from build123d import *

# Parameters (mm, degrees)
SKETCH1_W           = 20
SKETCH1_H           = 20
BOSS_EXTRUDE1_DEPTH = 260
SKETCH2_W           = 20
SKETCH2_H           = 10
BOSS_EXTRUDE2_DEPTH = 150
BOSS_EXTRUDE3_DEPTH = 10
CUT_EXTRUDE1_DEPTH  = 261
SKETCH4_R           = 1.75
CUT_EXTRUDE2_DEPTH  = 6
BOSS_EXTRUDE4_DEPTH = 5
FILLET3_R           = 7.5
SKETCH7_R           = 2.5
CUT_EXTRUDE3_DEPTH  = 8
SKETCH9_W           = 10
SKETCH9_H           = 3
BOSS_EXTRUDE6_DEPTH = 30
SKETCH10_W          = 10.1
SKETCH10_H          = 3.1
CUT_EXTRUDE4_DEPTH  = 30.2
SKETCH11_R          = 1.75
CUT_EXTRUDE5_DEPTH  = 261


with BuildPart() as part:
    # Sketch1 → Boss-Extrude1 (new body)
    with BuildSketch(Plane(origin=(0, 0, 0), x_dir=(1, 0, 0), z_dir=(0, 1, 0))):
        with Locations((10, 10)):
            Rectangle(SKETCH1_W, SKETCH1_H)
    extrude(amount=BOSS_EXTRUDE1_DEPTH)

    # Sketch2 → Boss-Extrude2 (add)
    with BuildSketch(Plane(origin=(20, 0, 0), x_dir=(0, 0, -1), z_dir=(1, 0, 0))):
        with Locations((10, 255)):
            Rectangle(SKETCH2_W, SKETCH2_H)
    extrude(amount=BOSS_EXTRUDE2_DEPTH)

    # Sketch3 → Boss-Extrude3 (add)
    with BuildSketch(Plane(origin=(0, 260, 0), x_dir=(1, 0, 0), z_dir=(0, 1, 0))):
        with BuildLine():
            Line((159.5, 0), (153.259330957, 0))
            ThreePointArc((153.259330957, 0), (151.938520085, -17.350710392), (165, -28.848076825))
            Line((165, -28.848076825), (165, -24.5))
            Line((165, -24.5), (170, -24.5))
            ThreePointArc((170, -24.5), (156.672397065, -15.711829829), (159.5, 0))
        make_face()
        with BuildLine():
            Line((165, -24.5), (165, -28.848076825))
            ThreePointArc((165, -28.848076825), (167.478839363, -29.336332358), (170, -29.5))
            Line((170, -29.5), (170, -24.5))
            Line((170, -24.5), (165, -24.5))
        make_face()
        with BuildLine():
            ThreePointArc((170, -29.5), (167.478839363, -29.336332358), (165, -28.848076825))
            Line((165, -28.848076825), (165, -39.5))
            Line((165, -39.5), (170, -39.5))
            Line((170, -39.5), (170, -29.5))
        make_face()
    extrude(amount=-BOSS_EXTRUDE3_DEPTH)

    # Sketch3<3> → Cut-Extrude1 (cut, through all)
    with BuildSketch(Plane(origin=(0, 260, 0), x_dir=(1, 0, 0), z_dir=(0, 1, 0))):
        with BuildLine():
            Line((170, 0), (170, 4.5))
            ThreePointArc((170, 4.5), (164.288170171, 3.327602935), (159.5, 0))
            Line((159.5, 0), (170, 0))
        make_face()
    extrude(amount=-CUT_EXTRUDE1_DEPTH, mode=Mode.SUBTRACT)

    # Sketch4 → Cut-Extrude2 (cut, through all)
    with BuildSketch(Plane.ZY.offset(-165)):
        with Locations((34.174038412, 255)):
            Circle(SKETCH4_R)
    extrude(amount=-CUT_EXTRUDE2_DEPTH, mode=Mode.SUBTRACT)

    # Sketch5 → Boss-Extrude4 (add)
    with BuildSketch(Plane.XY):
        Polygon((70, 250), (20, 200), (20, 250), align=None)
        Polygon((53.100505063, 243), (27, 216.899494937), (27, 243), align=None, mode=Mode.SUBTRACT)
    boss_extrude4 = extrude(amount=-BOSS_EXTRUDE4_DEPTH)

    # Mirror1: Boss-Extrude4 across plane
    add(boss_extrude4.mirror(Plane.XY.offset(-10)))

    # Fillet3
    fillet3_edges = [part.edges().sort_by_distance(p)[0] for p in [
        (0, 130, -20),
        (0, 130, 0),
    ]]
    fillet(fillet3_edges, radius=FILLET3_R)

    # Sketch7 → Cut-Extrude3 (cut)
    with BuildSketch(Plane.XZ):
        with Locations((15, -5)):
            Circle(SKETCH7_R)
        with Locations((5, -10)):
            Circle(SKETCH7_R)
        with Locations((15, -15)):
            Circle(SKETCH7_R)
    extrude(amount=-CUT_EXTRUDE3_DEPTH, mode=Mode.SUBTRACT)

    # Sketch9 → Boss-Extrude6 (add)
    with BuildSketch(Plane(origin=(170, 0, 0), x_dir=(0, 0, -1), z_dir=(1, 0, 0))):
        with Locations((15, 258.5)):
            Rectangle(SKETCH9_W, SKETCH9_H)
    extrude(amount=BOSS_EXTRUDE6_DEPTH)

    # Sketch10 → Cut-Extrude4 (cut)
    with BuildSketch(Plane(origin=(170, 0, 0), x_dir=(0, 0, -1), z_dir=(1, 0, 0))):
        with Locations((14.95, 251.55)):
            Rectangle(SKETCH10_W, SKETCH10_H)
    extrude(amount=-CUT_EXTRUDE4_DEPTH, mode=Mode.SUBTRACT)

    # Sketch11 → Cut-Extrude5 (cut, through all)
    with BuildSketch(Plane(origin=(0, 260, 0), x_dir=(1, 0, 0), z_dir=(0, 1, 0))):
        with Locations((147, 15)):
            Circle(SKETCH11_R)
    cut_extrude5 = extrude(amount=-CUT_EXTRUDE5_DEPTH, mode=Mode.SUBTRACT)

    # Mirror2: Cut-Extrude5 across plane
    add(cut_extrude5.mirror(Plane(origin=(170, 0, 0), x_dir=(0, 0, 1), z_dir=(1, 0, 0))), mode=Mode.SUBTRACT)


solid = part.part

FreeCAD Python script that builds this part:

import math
import FreeCAD as App
import Part
import Sketcher
from FreeCAD import Vector
Q = App.Units.Quantity


def edges_at(feature, points):
    """Names of the edges that pass closest to the given points."""
    edges = feature.Shape.Edges
    near = lambda p: min(range(len(edges)), key=lambda i: edges[i].distToShape(Part.Vertex(*p))[0])
    return sorted({f"Edge{near(p) + 1}" for p in points})

doc = App.newDocument("Part")
body = doc.addObject("PartDesign::Body", "Body")

sketch1 = body.newObject("Sketcher::SketchObject", "Sketch")
sketch1.AttachmentSupport = (doc.getObject("XZ_Plane"), [""])
sketch1.MapMode = "FlatFace"
sketch1.addGeometry(Part.LineSegment(Vector(0, -20, 0), Vector(0, 0, 0)), False)
sketch1.addGeometry(Part.LineSegment(Vector(0, 0, 0), Vector(20, 0, 0)), False)
sketch1.addGeometry(Part.LineSegment(Vector(20, 0, 0), Vector(20, -20, 0)), False)
sketch1.addGeometry(Part.LineSegment(Vector(20, -20, 0), Vector(0, -20, 0)), False)
sketch1.addConstraint(Sketcher.Constraint("Coincident", 0, 2, 1, 1))
sketch1.addConstraint(Sketcher.Constraint("Coincident", 1, 2, 2, 1))
sketch1.addConstraint(Sketcher.Constraint("Coincident", 2, 2, 3, 1))
sketch1.addConstraint(Sketcher.Constraint("Coincident", 3, 2, 0, 1))
sketch1.addConstraint(Sketcher.Constraint("Vertical", 0))
sketch1.addConstraint(Sketcher.Constraint("Horizontal", 1))
sketch1.addConstraint(Sketcher.Constraint("Vertical", 2))
sketch1.addConstraint(Sketcher.Constraint("Horizontal", 3))
sketch1.addConstraint(Sketcher.Constraint("Coincident", 0, 2, -1, 1))
sketch1.addConstraint(Sketcher.Constraint("Equal", 3, 0))
sketch1.addConstraint(Sketcher.Constraint("DistanceX", 1, 1, 1, 2, Q("20 mm")))
pad1 = body.newObject("PartDesign::Pad", "Pad")
pad1.Profile = sketch1
pad1.Length = 260
pad1.Reversed = True

sketch2 = body.newObject("Sketcher::SketchObject", "Sketch001")
sketch2.AttachmentSupport = (doc.getObject("YZ_Plane"), [""])
sketch2.MapMode = "FlatFace"
sketch2.AttachmentOffset = App.Placement(Vector(0, 0, 20), App.Rotation())
sketch2.addGeometry(Part.LineSegment(Vector(260, 0, 0), Vector(250, 0, 0)), False)
sketch2.addGeometry(Part.LineSegment(Vector(250, 0, 0), Vector(250, -20, 0)), False)
sketch2.addGeometry(Part.LineSegment(Vector(250, -20, 0), Vector(260, -20, 0)), False)
sketch2.addGeometry(Part.LineSegment(Vector(260, -20, 0), Vector(260, 0, 0)), False)
sketch2.addConstraint(Sketcher.Constraint("Coincident", 0, 2, 1, 1))
sketch2.addConstraint(Sketcher.Constraint("Coincident", 1, 2, 2, 1))
sketch2.addConstraint(Sketcher.Constraint("Coincident", 2, 2, 3, 1))
sketch2.addConstraint(Sketcher.Constraint("Coincident", 3, 2, 0, 1))
sketch2.addConstraint(Sketcher.Constraint("Horizontal", 0))
sketch2.addConstraint(Sketcher.Constraint("Vertical", 1))
sketch2.addConstraint(Sketcher.Constraint("Horizontal", 2))
sketch2.addConstraint(Sketcher.Constraint("Vertical", 3))
sketch2.addConstraint(Sketcher.Constraint("PointOnObject", 0, 2, -1))
sketch2.addConstraint(Sketcher.Constraint("DistanceX", 0, 2, 0, 1, Q("10 mm")))
sketch2.addConstraint(Sketcher.Constraint("DistanceY", 1, 2, 1, 1, Q("20 mm")))
sketch2.addConstraint(Sketcher.Constraint("DistanceX", -1, 1, 0, 2, Q("250 mm")))
pad2 = body.newObject("PartDesign::Pad", "Pad001")
pad2.Profile = sketch2
pad2.Length = 150

sketch3 = body.newObject("Sketcher::SketchObject", "Sketch002")
sketch3.AttachmentSupport = (doc.getObject("XZ_Plane"), [""])
sketch3.MapMode = "FlatFace"
sketch3.AttachmentOffset = App.Placement(Vector(0, 0, -260), App.Rotation())
sketch3.addGeometry(Part.LineSegment(Vector(160, 0, 0), Vector(153, 0, 0)), False)
sketch3.addGeometry(Part.ArcOfCircle(Part.Circle(Vector(170, 10, 0), Vector(0, 0, 1), 20), math.radians(105), math.radians(211)), False)
sketch3.addGeometry(Part.LineSegment(Vector(165, 29, 0), Vector(165, 40, 0)), False)
sketch3.addGeometry(Part.LineSegment(Vector(165, 40, 0), Vector(170, 40, 0)), False)
sketch3.addGeometry(Part.LineSegment(Vector(170, 40, 0), Vector(170, 24, 0)), False)
sketch3.addGeometry(Part.ArcOfCircle(Part.Circle(Vector(170, 10, 0), Vector(0, 0, 1), 14), math.radians(90), math.radians(224)), False)
sketch3.addConstraint(Sketcher.Constraint("Coincident", 0, 2, 1, 2))
sketch3.addConstraint(Sketcher.Constraint("Coincident", 1, 1, 2, 1))
sketch3.addConstraint(Sketcher.Constraint("Coincident", 2, 2, 3, 1))
sketch3.addConstraint(Sketcher.Constraint("Coincident", 3, 2, 4, 1))
sketch3.addConstraint(Sketcher.Constraint("Coincident", 4, 2, 5, 1))
sketch3.addConstraint(Sketcher.Constraint("Coincident", 5, 2, 0, 1))
sketch3.addConstraint(Sketcher.Constraint("Horizontal", 0))
sketch3.addConstraint(Sketcher.Constraint("Vertical", 2))
sketch3.addConstraint(Sketcher.Constraint("Horizontal", 3))
sketch3.addConstraint(Sketcher.Constraint("Vertical", 4))
sketch3.addConstraint(Sketcher.Constraint("Coincident", 5, 3, 1, 3))
sketch3.addConstraint(Sketcher.Constraint("PointOnObject", 0, 2, -1))
sketch3.addConstraint(Sketcher.Constraint("Vertical", 5, 3, 3, 2))
sketch3.addConstraint(Sketcher.Constraint("Radius", 1, Q("19.5 mm")))
sketch3.addConstraint(Sketcher.Constraint("Radius", 5, Q("14.5 mm")))
sketch3.addConstraint(Sketcher.Constraint("DistanceX", 3, 1, 3, 2, Q("5 mm")))
sketch3.addConstraint(Sketcher.Constraint("DistanceY", 4, 2, 4, 1, Q("15 mm")))
sketch3.addConstraint(Sketcher.Constraint("DistanceX", -1, 1, 1, 3, Q("170 mm")))
sketch3.addConstraint(Sketcher.Constraint("DistanceY", -1, 1, 1, 3, Q("10 mm")))
pad3 = body.newObject("PartDesign::Pad", "Pad002")
pad3.Profile = sketch3
pad3.Length = 10

sketch4 = body.newObject("Sketcher::SketchObject", "Sketch003")
sketch4.AttachmentSupport = (doc.getObject("XZ_Plane"), [""])
sketch4.MapMode = "FlatFace"
sketch4.AttachmentOffset = App.Placement(Vector(0, 0, -260), App.Rotation())
sketch4.addGeometry(Part.LineSegment(Vector(170, 0, 0), Vector(170, -4.5, 0)), False)
sketch4.addGeometry(Part.ArcOfCircle(Part.Circle(Vector(170, 10, 0), Vector(0, 0, 1), 14.5), math.radians(-136), math.radians(-90)), False)
sketch4.addGeometry(Part.LineSegment(Vector(159.5, 0, 0), Vector(170, 0, 0)), False)
sketch4.addConstraint(Sketcher.Constraint("Coincident", 0, 2, 1, 2))
sketch4.addConstraint(Sketcher.Constraint("Coincident", 1, 1, 2, 1))
sketch4.addConstraint(Sketcher.Constraint("Coincident", 2, 2, 0, 1))
sketch4.addConstraint(Sketcher.Constraint("Vertical", 0))
sketch4.addConstraint(Sketcher.Constraint("Horizontal", 2))
sketch4.addConstraint(Sketcher.Constraint("PointOnObject", 1, 1, -1))
sketch4.addConstraint(Sketcher.Constraint("Vertical", 1, 3, 0, 2))
sketch4.addConstraint(Sketcher.Constraint("Radius", 1, Q("14.5 mm")))
sketch4.addConstraint(Sketcher.Constraint("DistanceX", 2, 1, 2, 2, Q("10.5 mm")))
sketch4.addConstraint(Sketcher.Constraint("DistanceX", -1, 1, 1, 3, Q("170 mm")))
pocket1 = body.newObject("PartDesign::Pocket", "Pocket")
pocket1.Profile = sketch4
pocket1.Type = "ThroughAll"
pocket1.Reversed = True

sketch5 = body.newObject("Sketcher::SketchObject", "Sketch004")
sketch5.AttachmentSupport = (doc.getObject("YZ_Plane"), [""])
sketch5.MapMode = "FlatFace"
sketch5.AttachmentOffset = App.Placement(Vector(0, 0, 165), App.Rotation())
sketch5.addGeometry(Part.Circle(Vector(255, 34.2, 0), Vector(0, 0, 1), 1.8), False)
sketch5.addConstraint(Sketcher.Constraint("Diameter", 0, Q("3.5 mm")))
sketch5.addConstraint(Sketcher.Constraint("DistanceX", -1, 1, 0, 3, Q("255 mm")))
sketch5.addConstraint(Sketcher.Constraint("DistanceY", -1, 1, 0, 3, Q("34.174038 mm")))
pocket2 = body.newObject("PartDesign::Pocket", "Pocket001")
pocket2.Profile = sketch5
pocket2.Type = "ThroughAll"
pocket2.Reversed = True

sketch6 = body.newObject("Sketcher::SketchObject", "Sketch005")
sketch6.AttachmentSupport = (doc.getObject("XY_Plane"), [""])
sketch6.MapMode = "FlatFace"
sketch6.addGeometry(Part.LineSegment(Vector(20, 200, 0), Vector(70, 250, 0)), False)
sketch6.addGeometry(Part.LineSegment(Vector(70, 250, 0), Vector(20, 250, 0)), False)
sketch6.addGeometry(Part.LineSegment(Vector(20, 250, 0), Vector(20, 200, 0)), False)
sketch6.addGeometry(Part.LineSegment(Vector(53, 243, 0), Vector(27, 217, 0)), False)
sketch6.addGeometry(Part.LineSegment(Vector(27, 217, 0), Vector(27, 243, 0)), False)
sketch6.addGeometry(Part.LineSegment(Vector(27, 243, 0), Vector(53, 243, 0)), False)
sketch6.addConstraint(Sketcher.Constraint("Coincident", 0, 2, 1, 1))
sketch6.addConstraint(Sketcher.Constraint("Coincident", 1, 2, 2, 1))
sketch6.addConstraint(Sketcher.Constraint("Coincident", 2, 2, 0, 1))
sketch6.addConstraint(Sketcher.Constraint("Coincident", 3, 2, 4, 1))
sketch6.addConstraint(Sketcher.Constraint("Coincident", 4, 2, 5, 1))
sketch6.addConstraint(Sketcher.Constraint("Coincident", 5, 2, 3, 1))
sketch6.addConstraint(Sketcher.Constraint("Horizontal", 1))
sketch6.addConstraint(Sketcher.Constraint("Vertical", 2))
sketch6.addConstraint(Sketcher.Constraint("Vertical", 4))
sketch6.addConstraint(Sketcher.Constraint("Horizontal", 5))
sketch6.addConstraint(Sketcher.Constraint("Parallel", 0, 3))
sketch6.addConstraint(Sketcher.Constraint("Equal", 1, 2))
sketch6.addConstraint(Sketcher.Constraint("DistanceX", 1, 2, 1, 1, Q("50 mm")))
sketch6.addConstraint(Sketcher.Constraint("DistanceX", -1, 1, 0, 2, Q("70 mm")))
sketch6.addConstraint(Sketcher.Constraint("DistanceY", -1, 1, 0, 2, Q("250 mm")))
sketch6.addConstraint(Sketcher.Constraint("DistanceX", -1, 1, 3, 2, Q("27 mm")))
sketch6.addConstraint(Sketcher.Constraint("DistanceY", -1, 1, 4, 2, Q("243 mm")))
sketch6.addConstraint(Sketcher.Constraint("Distance", 3, Q("36.911688 mm")))
pad4 = body.newObject("PartDesign::Pad", "Pad003")
pad4.Profile = sketch6
pad4.Length = 5
pad4.Reversed = True
doc.recompute()

datumplane = body.newObject("PartDesign::Plane", "DatumPlane")
datumplane.AttachmentSupport = (doc.getObject("XY_Plane"), [""])
datumplane.MapMode = "FlatFace"
datumplane.AttachmentOffset = App.Placement(Vector(0, 0, -10), App.Rotation())
mirrored = body.newObject("PartDesign::Mirrored", "Mirrored")
mirrored.Originals = [pad4]
mirrored.MirrorPlane = (datumplane, [""])
body.Tip = mirrored
doc.recompute()

fillet = body.newObject("PartDesign::Fillet", "Fillet")
fillet.Base = (mirrored, edges_at(mirrored, [(0, 130, -20), (0, 130, 0)]))
fillet.Radius = 7.5

sketch7 = body.newObject("Sketcher::SketchObject", "Sketch006")
sketch7.AttachmentSupport = (doc.getObject("XZ_Plane"), [""])
sketch7.MapMode = "FlatFace"
sketch7.addGeometry(Part.Circle(Vector(15, -5, 0), Vector(0, 0, 1), 2.5), False)
sketch7.addGeometry(Part.Circle(Vector(5, -10, 0), Vector(0, 0, 1), 2.5), False)
sketch7.addGeometry(Part.Circle(Vector(15, -15, 0), Vector(0, 0, 1), 2.5), False)
sketch7.addConstraint(Sketcher.Constraint("Equal", 0, 1))
sketch7.addConstraint(Sketcher.Constraint("Equal", 1, 2))
sketch7.addConstraint(Sketcher.Constraint("Vertical", 0, 3, 2, 3))
sketch7.addConstraint(Sketcher.Constraint("Diameter", 0, Q("5 mm")))
sketch7.addConstraint(Sketcher.Constraint("DistanceX", -1, 1, 0, 3, Q("15 mm")))
sketch7.addConstraint(Sketcher.Constraint("DistanceY", 0, 3, -1, 1, Q("5 mm")))
sketch7.addConstraint(Sketcher.Constraint("DistanceX", -1, 1, 1, 3, Q("5 mm")))
sketch7.addConstraint(Sketcher.Constraint("DistanceY", 1, 3, -1, 1, Q("10 mm")))
sketch7.addConstraint(Sketcher.Constraint("DistanceY", 2, 3, -1, 1, Q("15 mm")))
pocket3 = body.newObject("PartDesign::Pocket", "Pocket002")
pocket3.Profile = sketch7
pocket3.Length = 8

sketch8 = body.newObject("Sketcher::SketchObject", "Sketch007")
sketch8.AttachmentSupport = (doc.getObject("YZ_Plane"), [""])
sketch8.MapMode = "FlatFace"
sketch8.AttachmentOffset = App.Placement(Vector(0, 0, 170), App.Rotation())
sketch8.addGeometry(Part.LineSegment(Vector(260, -10, 0), Vector(257, -10, 0)), False)
sketch8.addGeometry(Part.LineSegment(Vector(257, -10, 0), Vector(257, -20, 0)), False)
sketch8.addGeometry(Part.LineSegment(Vector(257, -20, 0), Vector(260, -20, 0)), False)
sketch8.addGeometry(Part.LineSegment(Vector(260, -20, 0), Vector(260, -10, 0)), False)
sketch8.addConstraint(Sketcher.Constraint("Coincident", 0, 2, 1, 1))
sketch8.addConstraint(Sketcher.Constraint("Coincident", 1, 2, 2, 1))
sketch8.addConstraint(Sketcher.Constraint("Coincident", 2, 2, 3, 1))
sketch8.addConstraint(Sketcher.Constraint("Coincident", 3, 2, 0, 1))
sketch8.addConstraint(Sketcher.Constraint("Horizontal", 0))
sketch8.addConstraint(Sketcher.Constraint("Vertical", 1))
sketch8.addConstraint(Sketcher.Constraint("Horizontal", 2))
sketch8.addConstraint(Sketcher.Constraint("Vertical", 3))
sketch8.addConstraint(Sketcher.Constraint("DistanceX", 0, 2, 0, 1, Q("3 mm")))
sketch8.addConstraint(Sketcher.Constraint("DistanceY", 1, 2, 1, 1, Q("10 mm")))
sketch8.addConstraint(Sketcher.Constraint("DistanceX", -1, 1, 0, 2, Q("257 mm")))
sketch8.addConstraint(Sketcher.Constraint("DistanceY", 0, 2, -1, 1, Q("10 mm")))
pad5 = body.newObject("PartDesign::Pad", "Pad004")
pad5.Profile = sketch8
pad5.Length = 30

sketch9 = body.newObject("Sketcher::SketchObject", "Sketch008")
sketch9.AttachmentSupport = (doc.getObject("YZ_Plane"), [""])
sketch9.MapMode = "FlatFace"
sketch9.AttachmentOffset = App.Placement(Vector(0, 0, 170), App.Rotation())
sketch9.addGeometry(Part.LineSegment(Vector(253.1, -9.9, 0), Vector(250, -9.9, 0)), False)
sketch9.addGeometry(Part.LineSegment(Vector(250, -9.9, 0), Vector(250, -20, 0)), False)
sketch9.addGeometry(Part.LineSegment(Vector(250, -20, 0), Vector(253.1, -20, 0)), False)
sketch9.addGeometry(Part.LineSegment(Vector(253.1, -20, 0), Vector(253.1, -9.9, 0)), False)
sketch9.addConstraint(Sketcher.Constraint("Coincident", 0, 2, 1, 1))
sketch9.addConstraint(Sketcher.Constraint("Coincident", 1, 2, 2, 1))
sketch9.addConstraint(Sketcher.Constraint("Coincident", 2, 2, 3, 1))
sketch9.addConstraint(Sketcher.Constraint("Coincident", 3, 2, 0, 1))
sketch9.addConstraint(Sketcher.Constraint("Horizontal", 0))
sketch9.addConstraint(Sketcher.Constraint("Vertical", 1))
sketch9.addConstraint(Sketcher.Constraint("Horizontal", 2))
sketch9.addConstraint(Sketcher.Constraint("Vertical", 3))
sketch9.addConstraint(Sketcher.Constraint("DistanceX", 0, 2, 0, 1, Q("3.1 mm")))
sketch9.addConstraint(Sketcher.Constraint("DistanceY", 1, 2, 1, 1, Q("10.1 mm")))
sketch9.addConstraint(Sketcher.Constraint("DistanceX", -1, 1, 0, 2, Q("250 mm")))
sketch9.addConstraint(Sketcher.Constraint("DistanceY", 1, 2, -1, 1, Q("20 mm")))
pocket4 = body.newObject("PartDesign::Pocket", "Pocket003")
pocket4.Profile = sketch9
pocket4.Length = 30.2

sketch10 = body.newObject("Sketcher::SketchObject", "Sketch009")
sketch10.AttachmentSupport = (doc.getObject("XZ_Plane"), [""])
sketch10.MapMode = "FlatFace"
sketch10.AttachmentOffset = App.Placement(Vector(0, 0, -260), App.Rotation())
sketch10.addGeometry(Part.Circle(Vector(147, -15, 0), Vector(0, 0, 1), 1.8), False)
sketch10.addConstraint(Sketcher.Constraint("Diameter", 0, Q("3.5 mm")))
sketch10.addConstraint(Sketcher.Constraint("DistanceX", -1, 1, 0, 3, Q("147 mm")))
sketch10.addConstraint(Sketcher.Constraint("DistanceY", 0, 3, -1, 1, Q("15 mm")))
pocket5 = body.newObject("PartDesign::Pocket", "Pocket004")
pocket5.Profile = sketch10
pocket5.Type = "ThroughAll"
pocket5.Reversed = True
doc.recompute()

datumplane2 = body.newObject("PartDesign::Plane", "DatumPlane001")
datumplane2.AttachmentSupport = (doc.getObject("YZ_Plane"), [""])
datumplane2.MapMode = "FlatFace"
datumplane2.AttachmentOffset = App.Placement(Vector(0, 0, 170), App.Rotation())
mirrored2 = body.newObject("PartDesign::Mirrored", "Mirrored001")
mirrored2.Originals = [pocket5]
mirrored2.MirrorPlane = (datumplane2, [""])
body.Tip = mirrored2

doc.recompute()
